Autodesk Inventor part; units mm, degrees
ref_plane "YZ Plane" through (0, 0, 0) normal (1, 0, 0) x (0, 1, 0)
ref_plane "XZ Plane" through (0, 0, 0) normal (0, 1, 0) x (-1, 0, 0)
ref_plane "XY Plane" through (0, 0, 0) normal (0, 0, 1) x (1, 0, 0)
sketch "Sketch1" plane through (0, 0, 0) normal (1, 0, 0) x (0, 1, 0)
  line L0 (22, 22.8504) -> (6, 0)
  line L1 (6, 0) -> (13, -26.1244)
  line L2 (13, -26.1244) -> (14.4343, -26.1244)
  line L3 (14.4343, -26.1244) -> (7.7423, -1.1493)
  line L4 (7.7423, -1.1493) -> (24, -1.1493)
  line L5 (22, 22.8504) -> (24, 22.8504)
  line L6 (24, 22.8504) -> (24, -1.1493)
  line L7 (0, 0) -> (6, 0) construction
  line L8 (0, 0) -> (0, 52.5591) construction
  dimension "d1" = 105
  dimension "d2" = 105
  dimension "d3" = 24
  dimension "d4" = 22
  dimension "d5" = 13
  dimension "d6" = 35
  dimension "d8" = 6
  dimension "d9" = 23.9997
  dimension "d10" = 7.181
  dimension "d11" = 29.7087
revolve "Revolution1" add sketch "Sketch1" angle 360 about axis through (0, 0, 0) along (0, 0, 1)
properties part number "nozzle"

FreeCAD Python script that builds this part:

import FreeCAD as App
import Part
import Sketcher

V = App.Vector
Q = App.Units.Quantity

doc = App.newDocument("Part")
body = doc.addObject("PartDesign::Body", "Body")

sketch1 = body.newObject("Sketcher::SketchObject", "Sketch")
sketch1.AttachmentSupport = (doc.getObject("YZ_Plane"), [""])
sketch1.MapMode = "FlatFace"
sketch1.addGeometry([
    Part.LineSegment(V(24, 22.8504, 0), V(22, 22.8504, 0)),
    Part.LineSegment(V(22, 22.8504, 0), V(6, 0, 0)),
    Part.LineSegment(V(6, 0, 0), V(13, -26.1244, 0)),
    Part.LineSegment(V(13, -26.1244, 0), V(14.4343, -26.1244, 0)),
    Part.LineSegment(V(14.4343, -26.1244, 0), V(7.7423, -1.1493, 0)),
    Part.LineSegment(V(7.7423, -1.1493, 0), V(24, -1.1493, 0)),
    Part.LineSegment(V(24, -1.1493, 0), V(24, 22.8504, 0)),
], False)
sketch1.addConstraint([
    Sketcher.Constraint("Coincident", 0, 2, 1, 1),
    Sketcher.Constraint("Coincident", 1, 2, 2, 1),
    Sketcher.Constraint("Coincident", 2, 2, 3, 1),
    Sketcher.Constraint("Coincident", 3, 2, 4, 1),
    Sketcher.Constraint("Coincident", 4, 2, 5, 1),
    Sketcher.Constraint("Coincident", 5, 2, 6, 1),
    Sketcher.Constraint("Coincident", 6, 2, 0, 1),
    Sketcher.Constraint("Horizontal", 0),
    Sketcher.Constraint("Horizontal", 3),
    Sketcher.Constraint("Horizontal", 5),
    Sketcher.Constraint("Vertical", 6),
    Sketcher.Constraint("PointOnObject", 1, 2, -1),
    Sketcher.Constraint("Parallel", 2, 4),
    Sketcher.Constraint("Angle", 4, Q("104.9999 deg")),
    Sketcher.Constraint("DistanceX", -1, 1, 0, 2, Q("22 mm")),
    Sketcher.Constraint("DistanceX", -1, 1, 1, 2, Q("6 mm")),
    Sketcher.Constraint("DistanceX", -1, 1, 2, 2, Q("13 mm")),
    Sketcher.Constraint("DistanceX", -1, 1, 5, 2, Q("24 mm")),
    Sketcher.Constraint("Angle", 1, Q("-125 deg")),
    Sketcher.Constraint("DistanceY", 6, 1, 6, 2, Q("23.9997 mm")),
    Sketcher.Constraint("DistanceX", 3, 1, 3, 2, Q("1.4343 mm")),
])
revolution = body.newObject("PartDesign::Revolution", "Revolution")
revolution.Profile = sketch1
revolution.ReferenceAxis = (sketch1, ["V_Axis"])
revolution.Angle = 360

doc.recompute()
